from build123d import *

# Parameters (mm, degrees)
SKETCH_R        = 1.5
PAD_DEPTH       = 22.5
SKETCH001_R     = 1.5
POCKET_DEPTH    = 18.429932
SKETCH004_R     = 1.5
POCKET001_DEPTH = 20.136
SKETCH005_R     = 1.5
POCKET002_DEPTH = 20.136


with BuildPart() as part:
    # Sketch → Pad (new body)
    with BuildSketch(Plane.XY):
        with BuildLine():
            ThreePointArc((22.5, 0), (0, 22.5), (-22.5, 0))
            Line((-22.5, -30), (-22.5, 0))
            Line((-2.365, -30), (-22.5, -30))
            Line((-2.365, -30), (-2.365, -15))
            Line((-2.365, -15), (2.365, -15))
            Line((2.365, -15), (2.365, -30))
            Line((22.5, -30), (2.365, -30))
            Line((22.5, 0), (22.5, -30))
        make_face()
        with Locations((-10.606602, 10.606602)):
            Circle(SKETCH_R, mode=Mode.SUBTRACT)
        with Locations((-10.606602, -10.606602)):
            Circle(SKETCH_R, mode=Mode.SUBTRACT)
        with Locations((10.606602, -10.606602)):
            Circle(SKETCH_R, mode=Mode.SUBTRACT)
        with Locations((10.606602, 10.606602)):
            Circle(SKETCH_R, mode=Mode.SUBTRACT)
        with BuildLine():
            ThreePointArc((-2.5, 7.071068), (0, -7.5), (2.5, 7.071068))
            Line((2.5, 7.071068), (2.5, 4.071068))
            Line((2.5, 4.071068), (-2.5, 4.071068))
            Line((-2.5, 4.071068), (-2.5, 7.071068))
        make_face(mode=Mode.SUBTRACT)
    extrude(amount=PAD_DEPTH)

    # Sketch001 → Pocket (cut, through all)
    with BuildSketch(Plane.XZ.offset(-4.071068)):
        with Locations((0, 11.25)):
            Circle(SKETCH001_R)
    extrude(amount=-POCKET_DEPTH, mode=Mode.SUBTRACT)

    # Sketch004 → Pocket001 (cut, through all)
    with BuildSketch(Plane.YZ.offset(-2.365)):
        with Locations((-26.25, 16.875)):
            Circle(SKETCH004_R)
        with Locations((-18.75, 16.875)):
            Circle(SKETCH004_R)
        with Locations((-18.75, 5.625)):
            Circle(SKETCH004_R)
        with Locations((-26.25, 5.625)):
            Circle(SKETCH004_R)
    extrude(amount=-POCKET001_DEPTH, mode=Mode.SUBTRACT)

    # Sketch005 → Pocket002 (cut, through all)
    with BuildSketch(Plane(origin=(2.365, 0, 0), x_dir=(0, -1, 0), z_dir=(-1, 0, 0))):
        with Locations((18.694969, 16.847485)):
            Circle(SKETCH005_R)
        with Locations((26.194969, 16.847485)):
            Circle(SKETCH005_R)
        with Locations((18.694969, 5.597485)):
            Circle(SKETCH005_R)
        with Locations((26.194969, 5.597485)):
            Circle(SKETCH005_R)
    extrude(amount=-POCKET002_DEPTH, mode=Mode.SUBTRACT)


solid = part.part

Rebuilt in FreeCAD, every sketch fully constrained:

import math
import FreeCAD as App
import Part
import Sketcher
from FreeCAD import Vector
Q = App.Units.Quantity

doc = App.newDocument("Part")
body = doc.addObject("PartDesign::Body", "Body")

# Sketch on XY plane
sketch1 = body.newObject("Sketcher::SketchObject", "Sketch")
sketch1.AttachmentSupport = (doc.getObject("XY_Plane"), [""])
sketch1.MapMode = "FlatFace"
sketch1.addGeometry(Part.ArcOfCircle(Part.Circle(Vector(0, 0, 0), Vector(0, 0, 1), 22.5), math.radians(0), math.radians(180)), False)
sketch1.addGeometry(Part.LineSegment(Vector(-22.5, 0, 0), Vector(-22.5, -30, 0)), False)
sketch1.addGeometry(Part.LineSegment(Vector(-22.5, -30, 0), Vector(-2.4, -30, 0)), False)
sketch1.addGeometry(Part.LineSegment(Vector(-2.4, -30, 0), Vector(-2.4, -15, 0)), False)
sketch1.addGeometry(Part.LineSegment(Vector(-2.4, -15, 0), Vector(2.4, -15, 0)), False)
sketch1.addGeometry(Part.LineSegment(Vector(2.4, -15, 0), Vector(2.4, -30, 0)), False)
sketch1.addGeometry(Part.LineSegment(Vector(2.4, -30, 0), Vector(22.5, -30, 0)), False)
sketch1.addGeometry(Part.LineSegment(Vector(22.5, -30, 0), Vector(22.5, 0, 0)), False)
sketch1.addGeometry(Part.Circle(Vector(-10.6, -10.6, 0), Vector(0, 0, 1), 1.5), False)
sketch1.addGeometry(Part.Circle(Vector(10.6, -10.6, 0), Vector(0, 0, 1), 1.5), False)
sketch1.addGeometry(Part.ArcOfCircle(Part.Circle(Vector(0, 0, 0), Vector(0, 0, 1), 7.5), math.radians(109), math.radians(431)), False)
sketch1.addGeometry(Part.LineSegment(Vector(-2.5, 7.1, 0), Vector(-2.5, 4.1, 0)), False)
sketch1.addGeometry(Part.LineSegment(Vector(-2.5, 4.1, 0), Vector(2.5, 4.1, 0)), False)
sketch1.addGeometry(Part.LineSegment(Vector(2.5, 4.1, 0), Vector(2.5, 7.1, 0)), False)
sketch1.addGeometry(Part.Circle(Vector(-10.6, 10.6, 0), Vector(0, 0, 1), 1.5), False)
sketch1.addGeometry(Part.Circle(Vector(10.6, 10.6, 0), Vector(0, 0, 1), 1.5), False)
sketch1.addConstraint(Sketcher.Constraint("Tangent", 0, 2, 1, 1))
sketch1.addConstraint(Sketcher.Constraint("Coincident", 1, 2, 2, 1))
sketch1.addConstraint(Sketcher.Constraint("Coincident", 2, 2, 3, 1))
sketch1.addConstraint(Sketcher.Constraint("Coincident", 3, 2, 4, 1))
sketch1.addConstraint(Sketcher.Constraint("Coincident", 4, 2, 5, 1))
sketch1.addConstraint(Sketcher.Constraint("Coincident", 5, 2, 6, 1))
sketch1.addConstraint(Sketcher.Constraint("Coincident", 6, 2, 7, 1))
sketch1.addConstraint(Sketcher.Constraint("Tangent", 7, 2, 0, 1))
sketch1.addConstraint(Sketcher.Constraint("Coincident", 10, 1, 11, 1))
sketch1.addConstraint(Sketcher.Constraint("Coincident", 11, 2, 12, 1))
sketch1.addConstraint(Sketcher.Constraint("Coincident", 12, 2, 13, 1))
sketch1.addConstraint(Sketcher.Constraint("Coincident", 13, 2, 10, 2))
sketch1.addConstraint(Sketcher.Constraint("Vertical", 1))
sketch1.addConstraint(Sketcher.Constraint("Horizontal", 2))
sketch1.addConstraint(Sketcher.Constraint("Vertical", 3))
sketch1.addConstraint(Sketcher.Constraint("Horizontal", 4))
sketch1.addConstraint(Sketcher.Constraint("Vertical", 5))
sketch1.addConstraint(Sketcher.Constraint("Horizontal", 6))
sketch1.addConstraint(Sketcher.Constraint("Vertical", 7))
sketch1.addConstraint(Sketcher.Constraint("Vertical", 11))
sketch1.addConstraint(Sketcher.Constraint("Horizontal", 12))
sketch1.addConstraint(Sketcher.Constraint("Vertical", 13))
sketch1.addConstraint(Sketcher.Constraint("Coincident", 0, 3, -1, 1))
sketch1.addConstraint(Sketcher.Constraint("Coincident", 10, 3, -1, 1))
sketch1.addConstraint(Sketcher.Constraint("Equal", 8, 9))
sketch1.addConstraint(Sketcher.Constraint("Equal", 9, 14))
sketch1.addConstraint(Sketcher.Constraint("Equal", 14, 15))
sketch1.addConstraint(Sketcher.Constraint("Symmetric", 9, 3, 14, 3, -1, 1))
sketch1.addConstraint(Sketcher.Constraint("Symmetric", 8, 3, 15, 3, -1, 1))
sketch1.addConstraint(Sketcher.Constraint("Symmetric", 8, 3, 9, 3, -2))
sketch1.addConstraint(Sketcher.Constraint("Symmetric", 2, 2, 5, 2, -2))
sketch1.addConstraint(Sketcher.Constraint("Horizontal", 10, 1, 13, 2))
sketch1.addConstraint(Sketcher.Constraint("Diameter", 8, Q("3 mm")))
sketch1.addConstraint(Sketcher.Constraint("Radius", 0, Q("22.5 mm")))
sketch1.addConstraint(Sketcher.Constraint("Radius", 10, Q("7.5 mm")))
sketch1.addConstraint(Sketcher.Constraint("DistanceX", 12, 1, 12, 2, Q("5 mm")))
sketch1.addConstraint(Sketcher.Constraint("DistanceY", 1, 2, 1, 1, Q("30 mm")))
sketch1.addConstraint(Sketcher.Constraint("DistanceY", 3, 1, 3, 2, Q("15 mm")))
sketch1.addConstraint(Sketcher.Constraint("DistanceY", 11, 2, 11, 1, Q("3 mm")))
sketch1.addConstraint(Sketcher.Constraint("DistanceX", 4, 1, 4, 2, Q("4.73 mm")))
sketch1.addConstraint(Sketcher.Constraint("DistanceY", 10, 3, 14, 3, Q("10.606602 mm")))
sketch1.addConstraint(Sketcher.Constraint("DistanceX", 10, 1, 15, 3, Q("13.106602 mm")))
pad1 = body.newObject("PartDesign::Pad", "Pad")
pad1.Profile = sketch1
pad1.Length = 22.5

# Sketch on XZ plane
sketch2 = body.newObject("Sketcher::SketchObject", "Sketch001")
sketch2.AttachmentSupport = (doc.getObject("XZ_Plane"), [""])
sketch2.MapMode = "FlatFace"
sketch2.AttachmentOffset = App.Placement(Vector(0, 0, -4.071068), App.Rotation())
sketch2.addGeometry(Part.Circle(Vector(0, 11.2, 0), Vector(0, 0, 1), 1.5), False)
sketch2.addConstraint(Sketcher.Constraint("PointOnObject", 0, 3, -2))
sketch2.addConstraint(Sketcher.Constraint("Diameter", 0, Q("3 mm")))
sketch2.addConstraint(Sketcher.Constraint("DistanceY", -1, 1, 0, 3, Q("11.25 mm")))
pocket1 = body.newObject("PartDesign::Pocket", "Pocket")
pocket1.Profile = sketch2
pocket1.Type = "ThroughAll"

# Sketch on YZ plane
sketch3 = body.newObject("Sketcher::SketchObject", "Sketch002")
sketch3.AttachmentSupport = (doc.getObject("YZ_Plane"), [""])
sketch3.MapMode = "FlatFace"
sketch3.AttachmentOffset = App.Placement(Vector(0, 0, -2.365), App.Rotation())
sketch3.addGeometry(Part.Circle(Vector(-26.2, 16.9, 0), Vector(0, 0, 1), 1.5), False)
sketch3.addGeometry(Part.Circle(Vector(-18.8, 16.9, 0), Vector(0, 0, 1), 1.5), False)
sketch3.addGeometry(Part.Circle(Vector(-18.8, 5.6, 0), Vector(0, 0, 1), 1.5), False)
sketch3.addGeometry(Part.Circle(Vector(-26.2, 5.6, 0), Vector(0, 0, 1), 1.5), False)
sketch3.addConstraint(Sketcher.Constraint("Equal", 0, 1))
sketch3.addConstraint(Sketcher.Constraint("Equal", 1, 2))
sketch3.addConstraint(Sketcher.Constraint("Equal", 2, 3))
sketch3.addConstraint(Sketcher.Constraint("Horizontal", 0, 3, 1, 3))
sketch3.addConstraint(Sketcher.Constraint("Horizontal", 2, 3, 3, 3))
sketch3.addConstraint(Sketcher.Constraint("Vertical", 1, 3, 2, 3))
sketch3.addConstraint(Sketcher.Constraint("Vertical", 0, 3, 3, 3))
sketch3.addConstraint(Sketcher.Constraint("Diameter", 0, Q("3 mm")))
sketch3.addConstraint(Sketcher.Constraint("DistanceX", 0, 3, 1, 3, Q("7.5 mm")))
sketch3.addConstraint(Sketcher.Constraint("DistanceX", 0, 3, -1, 1, Q("26.25 mm")))
sketch3.addConstraint(Sketcher.Constraint("DistanceY", 2, 3, 1, 3, Q("11.25 mm")))
sketch3.addConstraint(Sketcher.Constraint("DistanceY", -1, 1, 0, 3, Q("16.875 mm")))
pocket2 = body.newObject("PartDesign::Pocket", "Pocket001")
pocket2.Profile = sketch3
pocket2.Type = "ThroughAll"

# Sketch on YZ plane
sketch4 = body.newObject("Sketcher::SketchObject", "Sketch003")
sketch4.AttachmentSupport = (doc.getObject("YZ_Plane"), [""])
sketch4.MapMode = "FlatFace"
sketch4.AttachmentOffset = App.Placement(Vector(0, 0, 2.365), App.Rotation())
sketch4.addGeometry(Part.Circle(Vector(-18.7, 16.8, 0), Vector(0, 0, 1), 1.5), False)
sketch4.addGeometry(Part.Circle(Vector(-26.2, 16.8, 0), Vector(0, 0, 1), 1.5), False)
sketch4.addGeometry(Part.Circle(Vector(-18.7, 5.6, 0), Vector(0, 0, 1), 1.5), False)
sketch4.addGeometry(Part.Circle(Vector(-26.2, 5.6, 0), Vector(0, 0, 1), 1.5), False)
sketch4.addConstraint(Sketcher.Constraint("Equal", 0, 1))
sketch4.addConstraint(Sketcher.Constraint("Equal", 1, 2))
sketch4.addConstraint(Sketcher.Constraint("Equal", 2, 3))
sketch4.addConstraint(Sketcher.Constraint("Horizontal", 0, 3, 1, 3))
sketch4.addConstraint(Sketcher.Constraint("Horizontal", 2, 3, 3, 3))
sketch4.addConstraint(Sketcher.Constraint("Vertical", 0, 3, 2, 3))
sketch4.addConstraint(Sketcher.Constraint("Vertical", 1, 3, 3, 3))
sketch4.addConstraint(Sketcher.Constraint("Diameter", 0, Q("3 mm")))
sketch4.addConstraint(Sketcher.Constraint("DistanceX", 1, 3, 0, 3, Q("7.5 mm")))
sketch4.addConstraint(Sketcher.Constraint("DistanceY", 2, 3, 0, 3, Q("11.25 mm")))
sketch4.addConstraint(Sketcher.Constraint("DistanceX", 0, 3, -1, 1, Q("18.694969 mm")))
sketch4.addConstraint(Sketcher.Constraint("DistanceY", -1, 1, 0, 3, Q("16.847485 mm")))
pocket3 = body.newObject("PartDesign::Pocket", "Pocket002")
pocket3.Profile = sketch4
pocket3.Type = "ThroughAll"
pocket3.Reversed = True

doc.recompute()
